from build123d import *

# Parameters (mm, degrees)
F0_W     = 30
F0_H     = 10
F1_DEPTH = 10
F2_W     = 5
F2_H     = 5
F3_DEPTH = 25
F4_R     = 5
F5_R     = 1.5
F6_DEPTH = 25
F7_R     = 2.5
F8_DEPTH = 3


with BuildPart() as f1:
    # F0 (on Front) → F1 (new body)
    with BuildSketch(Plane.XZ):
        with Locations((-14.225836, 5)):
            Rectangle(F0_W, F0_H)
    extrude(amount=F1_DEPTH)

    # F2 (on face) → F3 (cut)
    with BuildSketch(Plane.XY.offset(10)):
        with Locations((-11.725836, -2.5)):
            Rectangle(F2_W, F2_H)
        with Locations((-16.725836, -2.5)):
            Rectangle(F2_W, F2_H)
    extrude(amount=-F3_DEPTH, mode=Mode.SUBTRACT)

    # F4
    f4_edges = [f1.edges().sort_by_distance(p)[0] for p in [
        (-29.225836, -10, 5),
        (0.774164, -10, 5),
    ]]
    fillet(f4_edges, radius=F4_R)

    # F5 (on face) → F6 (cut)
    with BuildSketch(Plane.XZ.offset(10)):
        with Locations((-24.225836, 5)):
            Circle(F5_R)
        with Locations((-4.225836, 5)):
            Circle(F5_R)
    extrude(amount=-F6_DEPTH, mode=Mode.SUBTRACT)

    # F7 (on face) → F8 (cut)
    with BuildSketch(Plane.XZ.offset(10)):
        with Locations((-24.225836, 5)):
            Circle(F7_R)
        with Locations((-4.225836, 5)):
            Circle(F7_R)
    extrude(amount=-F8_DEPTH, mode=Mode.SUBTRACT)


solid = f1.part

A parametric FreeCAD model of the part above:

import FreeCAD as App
import Part
import Sketcher


def edges_at(feature, points):
    """Names of the edges that pass closest to the given points."""
    edges = feature.Shape.Edges
    near = lambda p: min(range(len(edges)), key=lambda i: edges[i].distToShape(Part.Vertex(*p))[0])
    return sorted({f"Edge{near(p) + 1}" for p in points})

doc = App.newDocument("Part")
params = doc.addObject("Spreadsheet::Sheet", "Params")
for row, (alias, value) in enumerate([
    ("sketch1_width", "30 mm"),
    ("sketch1_height", "10 mm"),
    ("pad1_length", "10 mm"),
    ("sketch2_width", "10 mm"),
    ("sketch2_height", "5 mm"),
    ("pocket1_length", "25 mm"),
    ("fillet_radius", "5 mm"),
    ("sketch3_diameter", "3 mm"),
    ("pocket2_length", "25 mm"),
    ("sketch4_diameter", "5 mm"),
    ("pocket3_length", "3 mm"),
], start=1):
    params.set(f"A{row}", alias)
    params.set(f"B{row}", "=" + value)
    params.setAlias(f"B{row}", alias)

body = doc.addObject("PartDesign::Body", "Body")

sketch1 = doc.addObject("Sketcher::SketchObject", "Sketch")
body.addObject(sketch1)
sketch1.AttachmentSupport = (doc.XZ_Plane, [""])
sketch1.MapMode = "FlatFace"
sketch1.addGeometry([
    Part.LineSegment(App.Vector(-29, 10, 0), App.Vector(-29, 0, 0)),
    Part.LineSegment(App.Vector(-29, 0, 0), App.Vector(1, 0, 0)),
    Part.LineSegment(App.Vector(1, 0, 0), App.Vector(1, 10, 0)),
    Part.LineSegment(App.Vector(1, 10, 0), App.Vector(-29, 10, 0)),
], False)
sketch1.addConstraint([
    Sketcher.Constraint("Coincident", 0, 2, 1, 1),
    Sketcher.Constraint("Coincident", 1, 2, 2, 1),
    Sketcher.Constraint("Coincident", 2, 2, 3, 1),
    Sketcher.Constraint("Coincident", 3, 2, 0, 1),
    Sketcher.Constraint("Vertical", 0),
    Sketcher.Constraint("Horizontal", 1),
    Sketcher.Constraint("Vertical", 2),
    Sketcher.Constraint("Horizontal", 3),
    Sketcher.Constraint("PointOnObject", 0, 2, -1),
    Sketcher.Constraint("DistanceX", 1, 1, 1, 2, 30.0),
    Sketcher.Constraint("DistanceY", 0, 2, 0, 1, 10.0),
    Sketcher.Constraint("DistanceX", 0, 2, -1, 1, 29.225836),
])
sketch1.setExpression("Constraints[9]", "Params.sketch1_width")
sketch1.setExpression("Constraints[10]", "Params.sketch1_height")
pad1 = doc.addObject("PartDesign::Pad", "Pad")
body.addObject(pad1)
pad1.Profile = sketch1
pad1.setExpression("Length", "Params.pad1_length")

sketch2 = doc.addObject("Sketcher::SketchObject", "Sketch001")
body.addObject(sketch2)
sketch2.AttachmentSupport = (doc.XY_Plane, [""])
sketch2.MapMode = "FlatFace"
sketch2.AttachmentOffset = App.Placement(App.Vector(0, 0, 10), App.Rotation())
sketch2.addGeometry([
    Part.LineSegment(App.Vector(-9, -5, 0), App.Vector(-9, 0, 0)),
    Part.LineSegment(App.Vector(-9, 0, 0), App.Vector(-19, 0, 0)),
    Part.LineSegment(App.Vector(-19, 0, 0), App.Vector(-19, -5, 0)),
    Part.LineSegment(App.Vector(-19, -5, 0), App.Vector(-9, -5, 0)),
], False)
sketch2.addConstraint([
    Sketcher.Constraint("Coincident", 0, 2, 1, 1),
    Sketcher.Constraint("Coincident", 1, 2, 2, 1),
    Sketcher.Constraint("Coincident", 2, 2, 3, 1),
    Sketcher.Constraint("Coincident", 3, 2, 0, 1),
    Sketcher.Constraint("Vertical", 0),
    Sketcher.Constraint("Horizontal", 1),
    Sketcher.Constraint("Vertical", 2),
    Sketcher.Constraint("Horizontal", 3),
    Sketcher.Constraint("PointOnObject", 0, 2, -1),
    Sketcher.Constraint("DistanceX", 1, 2, 1, 1, 10.0),
    Sketcher.Constraint("DistanceY", 0, 1, 0, 2, 5.0),
    Sketcher.Constraint("DistanceX", 0, 2, -1, 1, 9.225836),
])
sketch2.setExpression("Constraints[9]", "Params.sketch2_width")
sketch2.setExpression("Constraints[10]", "Params.sketch2_height")
pocket1 = doc.addObject("PartDesign::Pocket", "Pocket")
body.addObject(pocket1)
pocket1.Profile = sketch2
pocket1.setExpression("Length", "Params.pocket1_length")
doc.recompute()

fillet = doc.addObject("PartDesign::Fillet", "Fillet")
body.addObject(fillet)
fillet.Base = (pocket1, edges_at(pocket1, [(-29.226, -10, 5), (0.774, -10, 5)]))
fillet.setExpression("Radius", "Params.fillet_radius")

sketch3 = doc.addObject("Sketcher::SketchObject", "Sketch002")
body.addObject(sketch3)
sketch3.AttachmentSupport = (doc.XZ_Plane, [""])
sketch3.MapMode = "FlatFace"
sketch3.AttachmentOffset = App.Placement(App.Vector(0, 0, 10), App.Rotation())
sketch3.addGeometry([
    Part.Circle(App.Vector(-24.2, 5, 0), App.Vector(0, 0, 1), 1.5),
    Part.Circle(App.Vector(-4.2, 5, 0), App.Vector(0, 0, 1), 1.5),
], False)
sketch3.addConstraint([
    Sketcher.Constraint("Equal", 0, 1),
    Sketcher.Constraint("Horizontal", 0, 3, 1, 3),
    Sketcher.Constraint("Diameter", 0, 3.0),
    Sketcher.Constraint("DistanceY", -1, 1, 0, 3, 5.0),
    Sketcher.Constraint("DistanceX", 0, 3, 1, 3, 20.0),
    Sketcher.Constraint("DistanceX", 0, 3, -1, 1, 24.225836),
])
sketch3.setExpression("Constraints[2]", "Params.sketch3_diameter")
pocket2 = doc.addObject("PartDesign::Pocket", "Pocket001")
body.addObject(pocket2)
pocket2.Profile = sketch3
pocket2.setExpression("Length", "Params.pocket2_length")

sketch4 = doc.addObject("Sketcher::SketchObject", "Sketch003")
body.addObject(sketch4)
sketch4.AttachmentSupport = (doc.XZ_Plane, [""])
sketch4.MapMode = "FlatFace"
sketch4.AttachmentOffset = App.Placement(App.Vector(0, 0, 10), App.Rotation())
sketch4.addGeometry([
    Part.Circle(App.Vector(-24.2, 5, 0), App.Vector(0, 0, 1), 2.5),
    Part.Circle(App.Vector(-4.2, 5, 0), App.Vector(0, 0, 1), 2.5),
], False)
sketch4.addConstraint([
    Sketcher.Constraint("Equal", 0, 1),
    Sketcher.Constraint("Horizontal", 0, 3, 1, 3),
    Sketcher.Constraint("Diameter", 0, 5.0),
    Sketcher.Constraint("DistanceY", -1, 1, 0, 3, 5.0),
    Sketcher.Constraint("DistanceX", 0, 3, 1, 3, 20.0),
    Sketcher.Constraint("DistanceX", 0, 3, -1, 1, 24.225836),
])
sketch4.setExpression("Constraints[2]", "Params.sketch4_diameter")
pocket3 = doc.addObject("PartDesign::Pocket", "Pocket002")
body.addObject(pocket3)
pocket3.Profile = sketch4
pocket3.setExpression("Length", "Params.pocket3_length")

doc.recompute()
